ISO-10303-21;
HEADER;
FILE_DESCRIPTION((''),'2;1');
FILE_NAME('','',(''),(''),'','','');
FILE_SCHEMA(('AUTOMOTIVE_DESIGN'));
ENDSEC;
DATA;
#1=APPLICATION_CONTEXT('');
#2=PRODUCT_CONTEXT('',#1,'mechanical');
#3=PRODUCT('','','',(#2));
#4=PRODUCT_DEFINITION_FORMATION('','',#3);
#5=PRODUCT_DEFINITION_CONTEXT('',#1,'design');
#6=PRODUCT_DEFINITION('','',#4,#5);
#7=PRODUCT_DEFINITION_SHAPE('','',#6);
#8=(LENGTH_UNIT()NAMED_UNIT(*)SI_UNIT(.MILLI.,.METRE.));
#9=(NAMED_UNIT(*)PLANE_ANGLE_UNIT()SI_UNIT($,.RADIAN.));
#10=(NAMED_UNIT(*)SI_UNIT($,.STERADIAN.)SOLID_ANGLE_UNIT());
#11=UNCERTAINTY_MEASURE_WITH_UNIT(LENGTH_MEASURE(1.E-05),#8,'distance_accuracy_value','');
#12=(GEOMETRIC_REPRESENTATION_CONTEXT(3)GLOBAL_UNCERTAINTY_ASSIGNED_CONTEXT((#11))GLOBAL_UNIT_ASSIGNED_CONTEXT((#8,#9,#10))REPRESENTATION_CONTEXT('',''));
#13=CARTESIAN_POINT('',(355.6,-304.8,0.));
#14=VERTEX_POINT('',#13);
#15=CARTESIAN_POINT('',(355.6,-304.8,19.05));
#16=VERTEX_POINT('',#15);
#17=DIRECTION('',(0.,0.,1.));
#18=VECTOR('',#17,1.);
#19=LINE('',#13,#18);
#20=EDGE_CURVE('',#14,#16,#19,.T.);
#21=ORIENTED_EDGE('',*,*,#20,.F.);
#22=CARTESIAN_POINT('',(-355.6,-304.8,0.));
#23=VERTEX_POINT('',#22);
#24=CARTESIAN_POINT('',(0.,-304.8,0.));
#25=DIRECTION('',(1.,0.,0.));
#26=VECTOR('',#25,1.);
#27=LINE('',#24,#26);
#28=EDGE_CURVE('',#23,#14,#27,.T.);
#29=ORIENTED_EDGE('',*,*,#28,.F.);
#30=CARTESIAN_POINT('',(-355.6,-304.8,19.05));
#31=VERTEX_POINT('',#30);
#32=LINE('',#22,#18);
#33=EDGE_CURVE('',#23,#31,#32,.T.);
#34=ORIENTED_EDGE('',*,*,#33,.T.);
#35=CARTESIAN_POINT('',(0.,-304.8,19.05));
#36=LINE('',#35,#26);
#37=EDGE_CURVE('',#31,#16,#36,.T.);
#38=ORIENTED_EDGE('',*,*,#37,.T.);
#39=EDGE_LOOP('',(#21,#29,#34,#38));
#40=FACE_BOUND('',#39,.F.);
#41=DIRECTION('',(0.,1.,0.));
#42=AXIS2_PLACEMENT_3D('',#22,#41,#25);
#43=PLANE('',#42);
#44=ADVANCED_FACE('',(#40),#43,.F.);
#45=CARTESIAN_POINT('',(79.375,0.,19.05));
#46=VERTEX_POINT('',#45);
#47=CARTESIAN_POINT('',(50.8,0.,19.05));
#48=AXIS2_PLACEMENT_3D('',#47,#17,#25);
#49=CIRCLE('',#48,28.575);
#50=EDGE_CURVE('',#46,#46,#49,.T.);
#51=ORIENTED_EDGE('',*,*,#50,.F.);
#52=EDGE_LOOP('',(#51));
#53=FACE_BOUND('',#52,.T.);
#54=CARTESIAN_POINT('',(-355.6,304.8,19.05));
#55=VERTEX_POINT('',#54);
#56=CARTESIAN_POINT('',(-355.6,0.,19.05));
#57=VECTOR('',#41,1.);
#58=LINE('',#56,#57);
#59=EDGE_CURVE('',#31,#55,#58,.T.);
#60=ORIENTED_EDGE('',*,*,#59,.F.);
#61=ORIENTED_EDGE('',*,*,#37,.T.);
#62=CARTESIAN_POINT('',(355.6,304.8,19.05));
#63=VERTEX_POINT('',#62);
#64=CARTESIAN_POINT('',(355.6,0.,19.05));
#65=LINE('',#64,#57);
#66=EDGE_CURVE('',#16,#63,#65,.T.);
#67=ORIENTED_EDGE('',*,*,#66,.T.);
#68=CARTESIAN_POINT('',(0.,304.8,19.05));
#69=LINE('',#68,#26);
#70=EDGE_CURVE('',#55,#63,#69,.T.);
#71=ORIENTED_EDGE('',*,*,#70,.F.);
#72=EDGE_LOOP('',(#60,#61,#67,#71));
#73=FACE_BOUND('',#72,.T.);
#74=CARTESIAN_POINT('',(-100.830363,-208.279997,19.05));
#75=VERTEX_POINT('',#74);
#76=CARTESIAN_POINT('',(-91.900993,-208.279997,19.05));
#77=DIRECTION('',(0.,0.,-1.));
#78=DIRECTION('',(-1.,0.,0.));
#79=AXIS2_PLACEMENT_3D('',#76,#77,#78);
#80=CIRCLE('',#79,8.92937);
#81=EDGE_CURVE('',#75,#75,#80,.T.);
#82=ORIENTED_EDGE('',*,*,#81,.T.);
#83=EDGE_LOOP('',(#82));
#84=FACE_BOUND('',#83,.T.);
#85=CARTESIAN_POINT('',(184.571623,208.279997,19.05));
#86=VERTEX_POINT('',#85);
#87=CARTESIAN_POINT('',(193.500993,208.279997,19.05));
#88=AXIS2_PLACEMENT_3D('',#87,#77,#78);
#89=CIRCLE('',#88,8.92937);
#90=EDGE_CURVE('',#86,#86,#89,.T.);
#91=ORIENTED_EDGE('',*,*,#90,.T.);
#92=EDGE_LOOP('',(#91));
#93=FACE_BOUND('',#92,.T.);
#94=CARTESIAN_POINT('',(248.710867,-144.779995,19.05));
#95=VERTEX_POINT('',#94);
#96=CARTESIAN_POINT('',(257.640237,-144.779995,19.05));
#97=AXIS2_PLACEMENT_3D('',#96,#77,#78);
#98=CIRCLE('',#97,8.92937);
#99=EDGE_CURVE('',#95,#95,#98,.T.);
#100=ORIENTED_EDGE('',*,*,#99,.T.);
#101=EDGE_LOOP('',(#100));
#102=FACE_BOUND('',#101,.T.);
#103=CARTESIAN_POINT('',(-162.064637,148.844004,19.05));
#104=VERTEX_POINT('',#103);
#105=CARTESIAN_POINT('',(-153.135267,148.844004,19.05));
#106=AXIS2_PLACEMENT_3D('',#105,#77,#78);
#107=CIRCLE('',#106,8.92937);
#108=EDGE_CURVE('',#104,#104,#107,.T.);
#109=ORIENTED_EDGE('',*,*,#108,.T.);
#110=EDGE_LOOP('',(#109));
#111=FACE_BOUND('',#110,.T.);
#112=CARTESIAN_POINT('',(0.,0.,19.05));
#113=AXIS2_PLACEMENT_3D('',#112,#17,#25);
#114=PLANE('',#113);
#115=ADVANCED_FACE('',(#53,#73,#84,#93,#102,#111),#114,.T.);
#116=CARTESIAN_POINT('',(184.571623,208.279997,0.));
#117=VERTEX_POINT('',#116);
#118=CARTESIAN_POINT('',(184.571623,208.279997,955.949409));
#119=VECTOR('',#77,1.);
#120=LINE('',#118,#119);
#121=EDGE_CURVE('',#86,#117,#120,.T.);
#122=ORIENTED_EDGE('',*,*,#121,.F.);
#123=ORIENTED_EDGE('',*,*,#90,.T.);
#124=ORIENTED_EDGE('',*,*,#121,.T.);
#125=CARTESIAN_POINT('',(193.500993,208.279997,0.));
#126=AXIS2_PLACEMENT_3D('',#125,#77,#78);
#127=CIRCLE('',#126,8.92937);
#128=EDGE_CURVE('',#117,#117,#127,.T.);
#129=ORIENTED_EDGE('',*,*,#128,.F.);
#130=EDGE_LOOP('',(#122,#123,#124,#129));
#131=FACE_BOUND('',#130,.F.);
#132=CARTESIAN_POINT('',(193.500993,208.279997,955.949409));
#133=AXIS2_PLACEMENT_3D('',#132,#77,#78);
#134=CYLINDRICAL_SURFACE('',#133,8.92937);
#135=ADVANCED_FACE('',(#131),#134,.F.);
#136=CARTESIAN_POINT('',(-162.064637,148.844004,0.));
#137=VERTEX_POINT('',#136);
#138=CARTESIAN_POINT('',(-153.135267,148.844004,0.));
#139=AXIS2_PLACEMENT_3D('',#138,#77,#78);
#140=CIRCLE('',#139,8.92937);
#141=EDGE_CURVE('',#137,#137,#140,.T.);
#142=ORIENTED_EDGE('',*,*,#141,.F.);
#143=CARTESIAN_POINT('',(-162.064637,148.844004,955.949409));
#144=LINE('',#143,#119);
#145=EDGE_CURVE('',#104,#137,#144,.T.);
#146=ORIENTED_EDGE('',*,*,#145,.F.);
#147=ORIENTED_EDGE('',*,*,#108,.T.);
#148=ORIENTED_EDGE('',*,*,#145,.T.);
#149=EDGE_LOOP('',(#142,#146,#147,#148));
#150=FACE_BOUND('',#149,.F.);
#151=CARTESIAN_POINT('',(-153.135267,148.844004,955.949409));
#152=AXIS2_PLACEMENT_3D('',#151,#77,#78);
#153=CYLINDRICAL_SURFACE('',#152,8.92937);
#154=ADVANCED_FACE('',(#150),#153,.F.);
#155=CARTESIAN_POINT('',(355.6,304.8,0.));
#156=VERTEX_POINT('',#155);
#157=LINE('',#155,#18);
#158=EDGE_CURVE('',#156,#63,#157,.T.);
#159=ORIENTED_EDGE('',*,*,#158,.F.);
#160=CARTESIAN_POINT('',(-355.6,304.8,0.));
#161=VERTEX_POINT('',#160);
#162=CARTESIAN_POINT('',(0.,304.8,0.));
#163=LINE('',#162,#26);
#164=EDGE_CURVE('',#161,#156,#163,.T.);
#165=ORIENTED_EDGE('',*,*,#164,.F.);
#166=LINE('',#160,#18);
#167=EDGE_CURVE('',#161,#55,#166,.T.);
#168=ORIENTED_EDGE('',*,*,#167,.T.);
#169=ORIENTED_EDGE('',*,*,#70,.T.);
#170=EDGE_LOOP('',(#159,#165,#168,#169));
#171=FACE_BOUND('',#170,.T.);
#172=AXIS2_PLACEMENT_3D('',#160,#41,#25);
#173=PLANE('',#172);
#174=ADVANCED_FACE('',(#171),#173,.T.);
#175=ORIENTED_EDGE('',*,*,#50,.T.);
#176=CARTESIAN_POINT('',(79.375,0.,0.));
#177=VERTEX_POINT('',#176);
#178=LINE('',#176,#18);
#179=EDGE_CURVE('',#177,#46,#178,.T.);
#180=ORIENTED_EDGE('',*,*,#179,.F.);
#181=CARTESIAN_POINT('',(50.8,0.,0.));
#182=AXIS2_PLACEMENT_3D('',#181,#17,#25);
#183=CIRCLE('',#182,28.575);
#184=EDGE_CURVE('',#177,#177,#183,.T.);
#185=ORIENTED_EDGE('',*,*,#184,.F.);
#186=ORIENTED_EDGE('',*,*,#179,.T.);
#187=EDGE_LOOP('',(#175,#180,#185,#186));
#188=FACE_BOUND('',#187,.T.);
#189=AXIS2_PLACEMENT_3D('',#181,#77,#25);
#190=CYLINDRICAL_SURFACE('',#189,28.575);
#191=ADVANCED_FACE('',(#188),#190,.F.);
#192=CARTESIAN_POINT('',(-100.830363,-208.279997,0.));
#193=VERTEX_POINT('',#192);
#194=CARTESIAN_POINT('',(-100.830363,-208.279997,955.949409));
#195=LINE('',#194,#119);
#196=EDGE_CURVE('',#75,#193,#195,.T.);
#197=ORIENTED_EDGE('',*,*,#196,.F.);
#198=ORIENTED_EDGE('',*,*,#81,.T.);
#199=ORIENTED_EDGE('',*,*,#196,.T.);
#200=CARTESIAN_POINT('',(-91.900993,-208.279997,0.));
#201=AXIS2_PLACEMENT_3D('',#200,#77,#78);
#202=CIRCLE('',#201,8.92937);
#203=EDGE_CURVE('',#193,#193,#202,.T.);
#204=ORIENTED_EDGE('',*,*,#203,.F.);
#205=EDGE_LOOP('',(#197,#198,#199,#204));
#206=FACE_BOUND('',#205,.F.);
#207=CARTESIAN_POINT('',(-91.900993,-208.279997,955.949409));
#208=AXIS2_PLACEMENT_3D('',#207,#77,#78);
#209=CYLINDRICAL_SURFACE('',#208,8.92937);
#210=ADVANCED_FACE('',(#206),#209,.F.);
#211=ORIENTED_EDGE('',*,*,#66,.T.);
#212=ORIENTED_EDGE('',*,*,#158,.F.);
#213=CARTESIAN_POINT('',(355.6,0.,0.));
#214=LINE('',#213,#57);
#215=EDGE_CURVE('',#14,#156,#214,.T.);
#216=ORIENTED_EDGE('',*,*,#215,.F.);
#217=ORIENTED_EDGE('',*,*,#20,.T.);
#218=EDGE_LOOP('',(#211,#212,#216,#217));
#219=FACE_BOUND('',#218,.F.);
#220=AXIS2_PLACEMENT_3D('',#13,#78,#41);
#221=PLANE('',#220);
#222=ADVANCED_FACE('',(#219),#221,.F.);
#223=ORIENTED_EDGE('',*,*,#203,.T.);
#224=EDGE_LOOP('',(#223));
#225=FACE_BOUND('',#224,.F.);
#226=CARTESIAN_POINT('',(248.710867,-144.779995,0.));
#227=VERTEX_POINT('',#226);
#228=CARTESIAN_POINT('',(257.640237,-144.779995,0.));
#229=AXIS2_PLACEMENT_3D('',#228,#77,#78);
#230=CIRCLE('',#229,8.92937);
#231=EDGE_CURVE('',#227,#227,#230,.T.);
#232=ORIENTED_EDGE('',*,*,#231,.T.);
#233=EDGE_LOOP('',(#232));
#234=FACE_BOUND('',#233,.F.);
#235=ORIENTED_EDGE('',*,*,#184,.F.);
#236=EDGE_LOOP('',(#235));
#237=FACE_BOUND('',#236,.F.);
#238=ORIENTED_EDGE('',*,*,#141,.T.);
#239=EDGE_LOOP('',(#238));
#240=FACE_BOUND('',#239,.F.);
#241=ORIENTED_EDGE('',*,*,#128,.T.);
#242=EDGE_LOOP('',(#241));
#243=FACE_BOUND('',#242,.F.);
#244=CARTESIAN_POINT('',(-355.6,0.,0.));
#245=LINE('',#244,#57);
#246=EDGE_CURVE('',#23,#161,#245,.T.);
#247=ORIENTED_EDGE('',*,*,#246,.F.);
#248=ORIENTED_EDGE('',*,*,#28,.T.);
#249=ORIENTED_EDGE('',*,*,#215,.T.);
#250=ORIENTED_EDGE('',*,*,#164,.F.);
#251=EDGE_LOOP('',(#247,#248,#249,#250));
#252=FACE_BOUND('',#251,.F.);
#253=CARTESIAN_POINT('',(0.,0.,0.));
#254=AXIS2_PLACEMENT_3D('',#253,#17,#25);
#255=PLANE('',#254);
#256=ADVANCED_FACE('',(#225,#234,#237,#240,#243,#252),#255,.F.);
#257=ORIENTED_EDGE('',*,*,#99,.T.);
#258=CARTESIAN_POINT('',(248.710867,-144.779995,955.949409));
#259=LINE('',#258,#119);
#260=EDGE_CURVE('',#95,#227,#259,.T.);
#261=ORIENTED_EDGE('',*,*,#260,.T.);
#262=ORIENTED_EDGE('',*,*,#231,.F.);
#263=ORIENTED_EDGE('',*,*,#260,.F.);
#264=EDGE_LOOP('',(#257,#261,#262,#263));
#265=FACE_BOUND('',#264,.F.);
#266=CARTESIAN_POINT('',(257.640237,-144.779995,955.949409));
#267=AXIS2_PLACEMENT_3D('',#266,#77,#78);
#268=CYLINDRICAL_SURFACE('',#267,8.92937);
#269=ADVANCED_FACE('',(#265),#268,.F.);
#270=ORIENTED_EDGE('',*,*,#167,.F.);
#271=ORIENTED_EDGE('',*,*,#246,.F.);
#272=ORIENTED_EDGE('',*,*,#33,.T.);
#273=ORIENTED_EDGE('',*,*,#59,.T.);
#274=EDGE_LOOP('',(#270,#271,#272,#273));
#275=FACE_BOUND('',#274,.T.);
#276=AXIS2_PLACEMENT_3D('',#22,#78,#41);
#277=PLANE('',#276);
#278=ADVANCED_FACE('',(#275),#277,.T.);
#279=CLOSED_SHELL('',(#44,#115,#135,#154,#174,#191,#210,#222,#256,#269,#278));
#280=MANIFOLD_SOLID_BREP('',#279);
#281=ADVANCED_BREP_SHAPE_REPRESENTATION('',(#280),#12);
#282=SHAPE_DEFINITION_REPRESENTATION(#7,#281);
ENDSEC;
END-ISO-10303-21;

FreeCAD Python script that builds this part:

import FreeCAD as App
import Part
import Sketcher

V = App.Vector
Q = App.Units.Quantity

doc = App.newDocument("Part")
body = doc.addObject("PartDesign::Body", "Body")

# Sketch on XY plane
sketch1 = body.newObject("Sketcher::SketchObject", "Sketch")
sketch1.AttachmentSupport = (doc.getObject("XY_Plane"), [""])
sketch1.MapMode = "FlatFace"
sketch1.addGeometry([
    Part.LineSegment(V(-356, 305, 0), V(-356, -305, 0)),  # 0
    Part.LineSegment(V(-356, -305, 0), V(356, -305, 0)),  # 1
    Part.LineSegment(V(356, -305, 0), V(356, 305, 0)),  # 2
    Part.LineSegment(V(356, 305, 0), V(-356, 305, 0)),  # 3
    Part.Circle(V(51, 0, 0), V(0, 0, 1), 29),  # 4
], False)
sketch1.addConstraint([
    Sketcher.Constraint("Coincident", 0, 2, 1, 1),
    Sketcher.Constraint("Coincident", 1, 2, 2, 1),
    Sketcher.Constraint("Coincident", 2, 2, 3, 1),
    Sketcher.Constraint("Coincident", 3, 2, 0, 1),
    Sketcher.Constraint("Vertical", 0),
    Sketcher.Constraint("Horizontal", 1),
    Sketcher.Constraint("Vertical", 2),
    Sketcher.Constraint("Horizontal", 3),
    Sketcher.Constraint("Symmetric", 0, 2, 2, 2, -1, 1),
    Sketcher.Constraint("PointOnObject", 4, 3, -1),
    Sketcher.Constraint("Diameter", 4, Q("2.25 in")),
    Sketcher.Constraint("DistanceX", 1, 1, 1, 2, Q("28 in")),
    Sketcher.Constraint("DistanceY", 0, 2, 0, 1, Q("24 in")),
    Sketcher.Constraint("DistanceX", -1, 1, 4, 3, Q("2 in")),
])
pad1 = body.newObject("PartDesign::Pad", "Pad")
pad1.Profile = sketch1
pad1.Length = Q("0.75 in")

# Sketch on XY plane
sketch2 = body.newObject("Sketcher::SketchObject", "Sketch001")
sketch2.AttachmentSupport = (doc.getObject("XY_Plane"), [""])
sketch2.MapMode = "FlatFace"
sketch2.AttachmentOffset = App.Placement(V(0, 0, 0.75 * 25.4), App.Rotation())
sketch2.addGeometry([
    Part.Circle(V(-153, 149, 0), V(0, 0, 1), 9),
    Part.Circle(V(-92, -208, 0), V(0, 0, 1), 9),
    Part.Circle(V(258, -145, 0), V(0, 0, 1), 9),
    Part.Circle(V(194, 208, 0), V(0, 0, 1), 9),
], False)
sketch2.addConstraint([
    Sketcher.Constraint("Equal", 0, 1),
    Sketcher.Constraint("Equal", 1, 2),
    Sketcher.Constraint("Equal", 2, 3),
    Sketcher.Constraint("Diameter", 0, Q("0.7031 in")),
    Sketcher.Constraint("DistanceY", 1, 3, -1, 1, Q("8.1999999 in")),
    Sketcher.Constraint("DistanceY", 2, 3, -1, 1, Q("5.6999998 in")),
    Sketcher.Constraint("DistanceY", -1, 1, 3, 3, Q("8.1999999 in")),
    Sketcher.Constraint("DistanceY", -1, 1, 0, 3, Q("5.8600001 in")),
    Sketcher.Constraint("DistanceX", 1, 3, 2, 3, Q("349.54123 mm")),
    Sketcher.Constraint("DistanceX", 0, 3, 3, 3, Q("346.63626 mm")),
    Sketcher.Constraint("DistanceX", 0, 3, -1, 1, Q("153.135267 mm")),
    Sketcher.Constraint("DistanceX", 1, 3, -1, 1, Q("91.900993 mm")),
])
doc.recompute()
hole = body.newObject("PartDesign::Hole", "Hole")
hole.Profile = sketch2
hole.ThreadType = "None"
hole.Diameter = Q("0.7031 in")
hole.DepthType = "ThroughAll"

doc.recompute()
